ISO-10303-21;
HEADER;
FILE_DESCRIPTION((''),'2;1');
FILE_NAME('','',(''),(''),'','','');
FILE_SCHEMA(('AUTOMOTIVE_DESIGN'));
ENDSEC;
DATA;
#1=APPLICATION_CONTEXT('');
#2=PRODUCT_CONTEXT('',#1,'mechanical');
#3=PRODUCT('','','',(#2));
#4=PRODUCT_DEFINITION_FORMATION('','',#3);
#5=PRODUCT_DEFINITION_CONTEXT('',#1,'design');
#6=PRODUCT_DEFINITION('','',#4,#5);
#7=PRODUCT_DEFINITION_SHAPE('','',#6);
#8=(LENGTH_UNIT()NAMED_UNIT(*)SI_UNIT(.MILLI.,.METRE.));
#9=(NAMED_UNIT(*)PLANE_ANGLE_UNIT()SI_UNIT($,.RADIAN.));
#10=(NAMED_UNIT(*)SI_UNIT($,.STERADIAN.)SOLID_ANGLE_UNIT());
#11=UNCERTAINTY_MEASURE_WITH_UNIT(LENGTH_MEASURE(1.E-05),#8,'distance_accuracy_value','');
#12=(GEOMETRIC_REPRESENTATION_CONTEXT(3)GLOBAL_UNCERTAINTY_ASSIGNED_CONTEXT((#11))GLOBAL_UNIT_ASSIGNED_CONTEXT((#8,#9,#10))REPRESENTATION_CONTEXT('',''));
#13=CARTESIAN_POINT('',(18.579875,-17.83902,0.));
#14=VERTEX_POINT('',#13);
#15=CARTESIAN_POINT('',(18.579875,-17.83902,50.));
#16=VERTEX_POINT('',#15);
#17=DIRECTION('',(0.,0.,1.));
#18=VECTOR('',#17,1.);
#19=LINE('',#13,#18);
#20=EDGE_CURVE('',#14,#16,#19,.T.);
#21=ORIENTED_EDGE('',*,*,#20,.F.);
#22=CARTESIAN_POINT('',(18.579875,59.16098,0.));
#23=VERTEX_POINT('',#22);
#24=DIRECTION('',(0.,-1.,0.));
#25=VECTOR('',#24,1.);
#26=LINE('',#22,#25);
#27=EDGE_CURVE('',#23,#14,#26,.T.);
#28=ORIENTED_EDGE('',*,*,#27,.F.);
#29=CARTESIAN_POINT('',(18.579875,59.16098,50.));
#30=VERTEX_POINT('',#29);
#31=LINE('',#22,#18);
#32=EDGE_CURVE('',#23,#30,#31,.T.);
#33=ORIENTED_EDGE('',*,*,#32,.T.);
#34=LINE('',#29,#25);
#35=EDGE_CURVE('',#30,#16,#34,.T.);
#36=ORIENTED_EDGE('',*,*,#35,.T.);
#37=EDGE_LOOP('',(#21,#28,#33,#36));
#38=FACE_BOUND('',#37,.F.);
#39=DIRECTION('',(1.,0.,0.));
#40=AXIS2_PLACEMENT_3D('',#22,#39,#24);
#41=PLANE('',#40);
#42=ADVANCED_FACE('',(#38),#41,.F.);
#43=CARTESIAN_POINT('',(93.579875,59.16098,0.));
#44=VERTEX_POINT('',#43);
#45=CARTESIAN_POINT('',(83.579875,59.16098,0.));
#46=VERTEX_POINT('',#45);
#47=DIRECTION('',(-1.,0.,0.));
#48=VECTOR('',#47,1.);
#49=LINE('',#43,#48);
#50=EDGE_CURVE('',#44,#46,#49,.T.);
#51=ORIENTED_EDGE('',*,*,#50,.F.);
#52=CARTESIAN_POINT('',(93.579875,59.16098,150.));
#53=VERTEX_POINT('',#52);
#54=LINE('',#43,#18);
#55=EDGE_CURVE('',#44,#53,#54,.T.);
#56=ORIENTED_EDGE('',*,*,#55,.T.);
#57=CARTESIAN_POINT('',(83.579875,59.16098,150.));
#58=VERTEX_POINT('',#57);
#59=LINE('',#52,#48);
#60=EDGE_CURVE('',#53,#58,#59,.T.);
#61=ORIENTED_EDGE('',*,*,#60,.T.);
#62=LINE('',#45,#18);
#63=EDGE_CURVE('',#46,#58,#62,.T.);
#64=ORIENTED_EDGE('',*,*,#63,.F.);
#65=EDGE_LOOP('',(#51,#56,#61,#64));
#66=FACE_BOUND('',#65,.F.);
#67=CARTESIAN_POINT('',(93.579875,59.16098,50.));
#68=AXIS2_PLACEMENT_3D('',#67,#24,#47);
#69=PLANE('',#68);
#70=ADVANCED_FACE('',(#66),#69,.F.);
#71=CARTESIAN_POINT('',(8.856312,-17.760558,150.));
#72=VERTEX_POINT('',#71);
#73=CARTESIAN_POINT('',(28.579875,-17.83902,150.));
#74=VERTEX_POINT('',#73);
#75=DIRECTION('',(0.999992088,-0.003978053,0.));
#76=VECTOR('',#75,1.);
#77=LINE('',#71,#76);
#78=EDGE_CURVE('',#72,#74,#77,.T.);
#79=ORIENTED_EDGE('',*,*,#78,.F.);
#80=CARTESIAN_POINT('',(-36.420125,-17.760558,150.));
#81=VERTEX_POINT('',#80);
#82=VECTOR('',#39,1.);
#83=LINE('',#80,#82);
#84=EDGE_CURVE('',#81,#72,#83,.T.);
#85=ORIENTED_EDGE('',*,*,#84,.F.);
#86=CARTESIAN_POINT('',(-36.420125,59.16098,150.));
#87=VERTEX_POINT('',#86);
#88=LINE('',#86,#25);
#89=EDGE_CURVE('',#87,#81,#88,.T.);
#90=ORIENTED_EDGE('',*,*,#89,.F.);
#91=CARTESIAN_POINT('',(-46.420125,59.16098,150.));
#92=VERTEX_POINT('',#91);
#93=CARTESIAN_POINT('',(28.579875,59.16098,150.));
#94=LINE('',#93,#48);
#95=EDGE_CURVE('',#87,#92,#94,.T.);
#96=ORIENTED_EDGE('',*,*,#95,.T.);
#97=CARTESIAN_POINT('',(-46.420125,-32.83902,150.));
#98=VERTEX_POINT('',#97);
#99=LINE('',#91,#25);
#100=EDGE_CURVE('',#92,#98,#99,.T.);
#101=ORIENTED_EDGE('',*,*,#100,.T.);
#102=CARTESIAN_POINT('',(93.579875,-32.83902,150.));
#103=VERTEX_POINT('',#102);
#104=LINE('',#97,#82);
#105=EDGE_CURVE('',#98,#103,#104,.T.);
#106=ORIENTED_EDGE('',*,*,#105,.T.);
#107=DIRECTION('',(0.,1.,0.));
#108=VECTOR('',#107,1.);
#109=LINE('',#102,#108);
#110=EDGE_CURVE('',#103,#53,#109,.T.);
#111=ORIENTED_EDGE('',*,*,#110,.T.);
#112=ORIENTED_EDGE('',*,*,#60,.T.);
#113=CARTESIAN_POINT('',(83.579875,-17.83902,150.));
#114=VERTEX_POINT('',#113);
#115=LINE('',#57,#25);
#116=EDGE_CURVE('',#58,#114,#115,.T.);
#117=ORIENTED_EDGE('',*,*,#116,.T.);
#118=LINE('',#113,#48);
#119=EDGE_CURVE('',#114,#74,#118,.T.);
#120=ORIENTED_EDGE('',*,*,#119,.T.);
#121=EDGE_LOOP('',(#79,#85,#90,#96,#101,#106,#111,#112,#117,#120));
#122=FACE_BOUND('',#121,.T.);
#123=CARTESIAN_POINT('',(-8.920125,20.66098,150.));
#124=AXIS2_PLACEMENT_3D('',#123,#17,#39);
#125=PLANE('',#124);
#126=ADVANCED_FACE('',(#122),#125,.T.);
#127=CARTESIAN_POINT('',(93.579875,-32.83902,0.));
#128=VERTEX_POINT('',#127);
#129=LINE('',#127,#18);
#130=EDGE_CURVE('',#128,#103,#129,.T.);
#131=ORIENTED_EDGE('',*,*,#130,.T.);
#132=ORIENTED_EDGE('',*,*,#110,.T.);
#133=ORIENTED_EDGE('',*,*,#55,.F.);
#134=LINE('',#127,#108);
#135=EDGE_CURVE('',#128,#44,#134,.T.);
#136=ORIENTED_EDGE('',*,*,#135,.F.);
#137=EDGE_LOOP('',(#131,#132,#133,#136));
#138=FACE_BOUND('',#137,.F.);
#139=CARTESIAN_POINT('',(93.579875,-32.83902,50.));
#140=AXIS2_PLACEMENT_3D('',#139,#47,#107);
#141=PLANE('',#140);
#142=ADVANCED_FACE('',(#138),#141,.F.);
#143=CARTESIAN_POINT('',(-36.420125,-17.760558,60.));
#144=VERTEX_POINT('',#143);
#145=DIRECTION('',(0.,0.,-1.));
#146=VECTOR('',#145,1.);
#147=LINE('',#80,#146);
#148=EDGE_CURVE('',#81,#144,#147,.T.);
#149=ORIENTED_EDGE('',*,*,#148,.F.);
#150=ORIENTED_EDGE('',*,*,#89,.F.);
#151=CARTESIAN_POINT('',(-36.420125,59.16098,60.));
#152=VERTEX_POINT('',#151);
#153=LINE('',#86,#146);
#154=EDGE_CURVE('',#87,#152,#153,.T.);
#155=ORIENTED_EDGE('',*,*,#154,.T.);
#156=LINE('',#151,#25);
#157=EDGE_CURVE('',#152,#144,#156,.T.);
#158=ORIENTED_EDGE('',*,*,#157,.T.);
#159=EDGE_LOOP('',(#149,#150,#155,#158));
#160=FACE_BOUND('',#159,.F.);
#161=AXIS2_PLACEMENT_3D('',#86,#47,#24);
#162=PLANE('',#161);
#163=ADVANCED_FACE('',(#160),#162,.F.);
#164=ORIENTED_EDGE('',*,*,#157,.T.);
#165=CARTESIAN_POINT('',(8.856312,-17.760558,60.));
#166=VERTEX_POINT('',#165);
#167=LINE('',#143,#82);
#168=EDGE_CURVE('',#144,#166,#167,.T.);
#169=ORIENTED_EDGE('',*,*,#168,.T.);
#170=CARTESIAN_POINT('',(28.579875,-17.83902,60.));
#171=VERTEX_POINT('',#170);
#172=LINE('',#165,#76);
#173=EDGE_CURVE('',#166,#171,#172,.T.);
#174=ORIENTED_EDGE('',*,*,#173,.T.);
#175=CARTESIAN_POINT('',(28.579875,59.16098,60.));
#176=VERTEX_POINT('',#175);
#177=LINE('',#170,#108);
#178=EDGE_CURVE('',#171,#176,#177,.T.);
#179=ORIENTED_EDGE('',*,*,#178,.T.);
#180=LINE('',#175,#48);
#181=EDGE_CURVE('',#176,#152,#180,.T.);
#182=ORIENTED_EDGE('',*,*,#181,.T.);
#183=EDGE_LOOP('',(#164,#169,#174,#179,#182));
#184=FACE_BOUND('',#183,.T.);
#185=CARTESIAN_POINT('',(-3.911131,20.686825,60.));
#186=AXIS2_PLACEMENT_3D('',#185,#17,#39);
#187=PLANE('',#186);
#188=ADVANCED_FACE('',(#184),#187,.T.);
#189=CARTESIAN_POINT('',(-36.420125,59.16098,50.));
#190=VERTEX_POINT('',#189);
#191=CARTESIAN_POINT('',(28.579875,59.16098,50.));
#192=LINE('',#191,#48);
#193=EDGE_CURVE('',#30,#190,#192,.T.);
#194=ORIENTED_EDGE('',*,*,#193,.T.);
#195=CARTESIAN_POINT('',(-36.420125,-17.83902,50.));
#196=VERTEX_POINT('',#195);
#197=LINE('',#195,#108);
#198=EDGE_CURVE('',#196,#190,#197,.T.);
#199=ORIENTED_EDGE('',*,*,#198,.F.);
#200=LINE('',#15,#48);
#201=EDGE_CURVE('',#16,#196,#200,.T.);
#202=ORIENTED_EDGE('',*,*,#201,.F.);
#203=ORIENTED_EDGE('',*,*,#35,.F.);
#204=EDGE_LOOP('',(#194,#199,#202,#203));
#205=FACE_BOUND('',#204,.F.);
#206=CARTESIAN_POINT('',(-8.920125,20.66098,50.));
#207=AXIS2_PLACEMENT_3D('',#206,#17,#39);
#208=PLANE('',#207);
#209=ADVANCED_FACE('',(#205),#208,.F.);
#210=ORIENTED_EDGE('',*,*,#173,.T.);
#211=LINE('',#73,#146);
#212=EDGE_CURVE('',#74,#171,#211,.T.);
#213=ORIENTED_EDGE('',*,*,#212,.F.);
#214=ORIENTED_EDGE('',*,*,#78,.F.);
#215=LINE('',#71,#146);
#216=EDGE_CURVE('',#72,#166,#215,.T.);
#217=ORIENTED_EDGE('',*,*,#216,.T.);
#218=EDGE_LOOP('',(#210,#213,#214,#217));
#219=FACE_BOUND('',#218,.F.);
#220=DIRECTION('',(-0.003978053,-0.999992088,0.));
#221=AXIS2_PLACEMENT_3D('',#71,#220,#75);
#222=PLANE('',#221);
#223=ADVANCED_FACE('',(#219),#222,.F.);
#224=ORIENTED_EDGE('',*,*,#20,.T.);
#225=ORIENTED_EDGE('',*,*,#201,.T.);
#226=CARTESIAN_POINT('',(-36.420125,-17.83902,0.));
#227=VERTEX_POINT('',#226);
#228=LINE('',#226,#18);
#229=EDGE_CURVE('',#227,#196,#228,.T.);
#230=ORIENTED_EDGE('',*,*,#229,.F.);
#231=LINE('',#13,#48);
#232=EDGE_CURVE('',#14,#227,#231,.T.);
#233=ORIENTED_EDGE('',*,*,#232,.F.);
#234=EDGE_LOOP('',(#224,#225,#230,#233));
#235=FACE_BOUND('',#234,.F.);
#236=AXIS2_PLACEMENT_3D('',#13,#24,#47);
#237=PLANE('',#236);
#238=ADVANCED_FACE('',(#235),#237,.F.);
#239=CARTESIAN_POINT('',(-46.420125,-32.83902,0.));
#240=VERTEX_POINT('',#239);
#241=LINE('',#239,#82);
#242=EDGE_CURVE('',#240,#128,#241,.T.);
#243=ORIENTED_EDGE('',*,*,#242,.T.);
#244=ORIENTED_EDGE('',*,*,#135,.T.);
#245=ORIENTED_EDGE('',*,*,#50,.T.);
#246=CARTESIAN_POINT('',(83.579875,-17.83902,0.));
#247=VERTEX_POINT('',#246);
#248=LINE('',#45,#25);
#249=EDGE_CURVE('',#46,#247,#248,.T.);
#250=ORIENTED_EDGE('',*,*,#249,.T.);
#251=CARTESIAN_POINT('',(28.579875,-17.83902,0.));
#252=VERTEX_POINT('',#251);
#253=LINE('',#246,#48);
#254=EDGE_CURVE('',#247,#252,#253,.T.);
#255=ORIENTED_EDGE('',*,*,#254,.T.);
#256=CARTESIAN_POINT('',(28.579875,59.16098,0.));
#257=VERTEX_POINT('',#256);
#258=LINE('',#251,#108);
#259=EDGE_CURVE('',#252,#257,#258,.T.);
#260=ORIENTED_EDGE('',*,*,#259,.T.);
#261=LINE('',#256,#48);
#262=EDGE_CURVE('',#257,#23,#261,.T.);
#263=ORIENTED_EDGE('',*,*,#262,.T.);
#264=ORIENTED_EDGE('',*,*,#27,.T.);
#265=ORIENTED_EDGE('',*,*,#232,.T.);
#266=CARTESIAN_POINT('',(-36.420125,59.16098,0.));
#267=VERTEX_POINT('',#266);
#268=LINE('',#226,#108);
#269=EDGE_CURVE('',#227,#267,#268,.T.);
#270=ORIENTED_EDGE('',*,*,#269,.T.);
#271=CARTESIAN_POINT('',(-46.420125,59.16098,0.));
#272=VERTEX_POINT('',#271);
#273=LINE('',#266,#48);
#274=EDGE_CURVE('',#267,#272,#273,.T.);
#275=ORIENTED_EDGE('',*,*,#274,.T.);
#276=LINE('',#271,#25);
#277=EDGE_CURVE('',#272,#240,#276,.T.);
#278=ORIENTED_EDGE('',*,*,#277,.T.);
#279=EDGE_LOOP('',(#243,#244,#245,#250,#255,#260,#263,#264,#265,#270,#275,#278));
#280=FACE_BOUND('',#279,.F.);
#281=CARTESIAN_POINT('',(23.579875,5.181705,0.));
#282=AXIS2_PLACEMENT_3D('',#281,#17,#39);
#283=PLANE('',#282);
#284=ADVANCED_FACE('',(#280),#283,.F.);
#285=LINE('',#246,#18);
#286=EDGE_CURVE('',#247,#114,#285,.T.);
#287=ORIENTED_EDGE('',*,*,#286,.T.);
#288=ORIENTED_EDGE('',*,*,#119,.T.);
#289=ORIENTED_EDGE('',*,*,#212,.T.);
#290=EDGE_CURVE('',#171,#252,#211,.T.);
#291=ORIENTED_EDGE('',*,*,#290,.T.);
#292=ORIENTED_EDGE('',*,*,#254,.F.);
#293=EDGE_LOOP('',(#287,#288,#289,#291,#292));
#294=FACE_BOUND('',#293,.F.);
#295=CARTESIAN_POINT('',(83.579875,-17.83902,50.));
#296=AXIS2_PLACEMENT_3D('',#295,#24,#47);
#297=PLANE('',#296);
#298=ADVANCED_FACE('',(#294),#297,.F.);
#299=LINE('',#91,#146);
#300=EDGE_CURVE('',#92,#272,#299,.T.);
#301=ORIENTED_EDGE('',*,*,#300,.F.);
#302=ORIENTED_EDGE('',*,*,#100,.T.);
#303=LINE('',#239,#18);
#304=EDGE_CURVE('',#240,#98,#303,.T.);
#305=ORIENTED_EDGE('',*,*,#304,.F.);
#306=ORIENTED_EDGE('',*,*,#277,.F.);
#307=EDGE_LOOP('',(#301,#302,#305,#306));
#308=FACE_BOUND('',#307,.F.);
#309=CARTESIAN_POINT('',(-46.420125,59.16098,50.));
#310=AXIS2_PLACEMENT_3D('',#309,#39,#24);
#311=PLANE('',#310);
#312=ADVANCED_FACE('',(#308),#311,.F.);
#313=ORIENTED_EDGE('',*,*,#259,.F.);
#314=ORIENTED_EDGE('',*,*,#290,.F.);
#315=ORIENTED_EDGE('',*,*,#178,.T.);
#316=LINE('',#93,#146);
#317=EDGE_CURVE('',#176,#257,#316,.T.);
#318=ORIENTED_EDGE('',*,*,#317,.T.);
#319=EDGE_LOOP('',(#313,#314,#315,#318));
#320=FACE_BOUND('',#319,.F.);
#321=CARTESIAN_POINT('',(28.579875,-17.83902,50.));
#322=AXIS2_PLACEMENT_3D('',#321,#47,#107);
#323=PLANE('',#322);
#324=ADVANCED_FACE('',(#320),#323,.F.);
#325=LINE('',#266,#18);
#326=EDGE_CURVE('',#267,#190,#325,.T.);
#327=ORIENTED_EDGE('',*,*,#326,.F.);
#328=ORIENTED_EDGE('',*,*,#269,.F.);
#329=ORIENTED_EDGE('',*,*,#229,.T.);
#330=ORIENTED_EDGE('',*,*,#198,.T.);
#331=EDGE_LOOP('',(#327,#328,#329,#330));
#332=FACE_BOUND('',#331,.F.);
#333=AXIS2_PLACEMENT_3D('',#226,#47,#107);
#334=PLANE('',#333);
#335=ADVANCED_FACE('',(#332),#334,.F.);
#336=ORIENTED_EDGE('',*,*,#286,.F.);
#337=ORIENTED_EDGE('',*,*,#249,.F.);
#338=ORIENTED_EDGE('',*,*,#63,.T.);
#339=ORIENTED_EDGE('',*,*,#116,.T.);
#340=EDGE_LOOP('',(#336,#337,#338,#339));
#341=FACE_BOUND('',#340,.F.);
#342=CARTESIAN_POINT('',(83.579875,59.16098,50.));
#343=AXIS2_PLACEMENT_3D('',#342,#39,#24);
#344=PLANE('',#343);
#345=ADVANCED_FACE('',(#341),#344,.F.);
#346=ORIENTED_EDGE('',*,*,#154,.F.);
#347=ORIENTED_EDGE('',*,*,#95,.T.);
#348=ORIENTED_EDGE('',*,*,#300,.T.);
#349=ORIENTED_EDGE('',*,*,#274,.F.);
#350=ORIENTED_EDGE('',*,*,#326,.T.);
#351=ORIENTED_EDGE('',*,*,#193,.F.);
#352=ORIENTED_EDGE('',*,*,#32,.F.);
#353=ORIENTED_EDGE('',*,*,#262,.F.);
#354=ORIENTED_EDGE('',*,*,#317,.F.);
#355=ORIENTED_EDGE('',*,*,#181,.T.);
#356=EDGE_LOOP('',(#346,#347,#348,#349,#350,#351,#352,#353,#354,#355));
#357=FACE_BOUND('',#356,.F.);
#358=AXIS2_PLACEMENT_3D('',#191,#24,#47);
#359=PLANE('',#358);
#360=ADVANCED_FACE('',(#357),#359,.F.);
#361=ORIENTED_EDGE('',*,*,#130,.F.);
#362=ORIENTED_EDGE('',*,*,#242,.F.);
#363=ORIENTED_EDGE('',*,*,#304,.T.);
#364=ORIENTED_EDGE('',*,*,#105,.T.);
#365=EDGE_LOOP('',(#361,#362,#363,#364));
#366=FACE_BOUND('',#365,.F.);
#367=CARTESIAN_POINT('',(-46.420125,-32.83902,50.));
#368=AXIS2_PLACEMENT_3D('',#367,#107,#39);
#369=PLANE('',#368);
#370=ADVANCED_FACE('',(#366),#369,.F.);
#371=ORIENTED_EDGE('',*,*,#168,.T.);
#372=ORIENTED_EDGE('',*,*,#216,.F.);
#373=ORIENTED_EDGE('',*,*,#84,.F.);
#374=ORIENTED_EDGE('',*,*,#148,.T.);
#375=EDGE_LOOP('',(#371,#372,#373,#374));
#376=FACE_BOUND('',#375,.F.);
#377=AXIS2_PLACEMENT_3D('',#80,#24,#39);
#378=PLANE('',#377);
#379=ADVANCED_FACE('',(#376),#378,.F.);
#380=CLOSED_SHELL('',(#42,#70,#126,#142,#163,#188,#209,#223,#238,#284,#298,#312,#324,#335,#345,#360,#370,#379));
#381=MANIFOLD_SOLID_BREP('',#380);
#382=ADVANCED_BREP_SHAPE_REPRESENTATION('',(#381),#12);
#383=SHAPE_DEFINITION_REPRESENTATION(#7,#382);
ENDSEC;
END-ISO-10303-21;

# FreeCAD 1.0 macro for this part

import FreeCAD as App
import Part
import Sketcher
from FreeCAD import Vector
Q = App.Units.Quantity

doc = App.newDocument("Part")
body = doc.addObject("PartDesign::Body", "Body")

# Sketch on XY plane
sketch1 = body.newObject("Sketcher::SketchObject", "Sketch")
sketch1.AttachmentSupport = (doc.getObject("XY_Plane"), [""])
sketch1.MapMode = "FlatFace"
sketch1.addGeometry([
    Part.LineSegment(Vector(-36, 59, 0), Vector(-46, 59, 0)),  # 0
    Part.LineSegment(Vector(-46, 59, 0), Vector(-46, -33, 0)),  # 1
    Part.LineSegment(Vector(-46, -33, 0), Vector(94, -33, 0)),  # 2
    Part.LineSegment(Vector(94, -33, 0), Vector(94, 59, 0)),  # 3
    Part.LineSegment(Vector(94, 59, 0), Vector(84, 59, 0)),  # 4
    Part.LineSegment(Vector(84, 59, 0), Vector(84, -18, 0)),  # 5
    Part.LineSegment(Vector(84, -18, 0), Vector(29, -18, 0)),  # 6
    Part.LineSegment(Vector(29, -18, 0), Vector(29, 59, 0)),  # 7
    Part.LineSegment(Vector(29, 59, 0), Vector(19, 59, 0)),  # 8
    Part.LineSegment(Vector(19, 59, 0), Vector(19, -18, 0)),  # 9
    Part.LineSegment(Vector(19, -18, 0), Vector(-36, -18, 0)),  # 10
    Part.LineSegment(Vector(-36, -18, 0), Vector(-36, 59, 0)),  # 11
], False)
sketch1.addConstraint([
    Sketcher.Constraint("Coincident", 0, 2, 1, 1),
    Sketcher.Constraint("Coincident", 1, 2, 2, 1),
    Sketcher.Constraint("Coincident", 2, 2, 3, 1),
    Sketcher.Constraint("Coincident", 3, 2, 4, 1),
    Sketcher.Constraint("Coincident", 4, 2, 5, 1),
    Sketcher.Constraint("Coincident", 5, 2, 6, 1),
    Sketcher.Constraint("Coincident", 6, 2, 7, 1),
    Sketcher.Constraint("Coincident", 7, 2, 8, 1),
    Sketcher.Constraint("Coincident", 8, 2, 9, 1),
    Sketcher.Constraint("Coincident", 9, 2, 10, 1),
    Sketcher.Constraint("Coincident", 10, 2, 11, 1),
    Sketcher.Constraint("Coincident", 11, 2, 0, 1),
    Sketcher.Constraint("Horizontal", 0),
    Sketcher.Constraint("Vertical", 1),
    Sketcher.Constraint("Horizontal", 2),
    Sketcher.Constraint("Vertical", 3),
    Sketcher.Constraint("Horizontal", 4),
    Sketcher.Constraint("Vertical", 5),
    Sketcher.Constraint("Horizontal", 6),
    Sketcher.Constraint("Vertical", 7),
    Sketcher.Constraint("Horizontal", 8),
    Sketcher.Constraint("Vertical", 9),
    Sketcher.Constraint("Horizontal", 10),
    Sketcher.Constraint("Vertical", 11),
    Sketcher.Constraint("Horizontal", 0, 2, 3, 2),
    Sketcher.Constraint("Horizontal", 4, 2, 7, 2),
    Sketcher.Constraint("Horizontal", 6, 2, 9, 2),
    Sketcher.Constraint("Equal", 0, 4),
    Sketcher.Constraint("Equal", 4, 8),
    Sketcher.Constraint("Equal", 6, 10),
    Sketcher.Constraint("DistanceX", 0, 2, 0, 1, Q("10 mm")),
    Sketcher.Constraint("DistanceX", 2, 1, 2, 2, Q("140 mm")),
    Sketcher.Constraint("DistanceY", 1, 2, 1, 1, Q("92 mm")),
    Sketcher.Constraint("DistanceY", 5, 2, 5, 1, Q("77 mm")),
    Sketcher.Constraint("DistanceY", -1, 1, 0, 2, Q("59.16098 mm")),
    Sketcher.Constraint("DistanceX", 0, 2, -1, 1, Q("46.420125 mm")),
])
pad1 = body.newObject("PartDesign::Pad", "Pad")
pad1.Profile = sketch1
pad1.Length = 50

# Sketch on XY plane
sketch2 = body.newObject("Sketcher::SketchObject", "Sketch001")
sketch2.AttachmentSupport = (doc.getObject("XY_Plane"), [""])
sketch2.MapMode = "FlatFace"
sketch2.AttachmentOffset = App.Placement(Vector(0, 0, 50), App.Rotation())
sketch2.addGeometry([
    Part.LineSegment(Vector(-46, 59, 0), Vector(-46, -33, 0)),  # 0
    Part.LineSegment(Vector(-46, -33, 0), Vector(94, -33, 0)),  # 1
    Part.LineSegment(Vector(94, -33, 0), Vector(94, 59, 0)),  # 2
    Part.LineSegment(Vector(94, 59, 0), Vector(84, 59, 0)),  # 3
    Part.LineSegment(Vector(84, 59, 0), Vector(84, -18, 0)),  # 4
    Part.LineSegment(Vector(84, -18, 0), Vector(29, -18, 0)),  # 5
    Part.LineSegment(Vector(29, -18, 0), Vector(29, 59, 0)),  # 6
    Part.LineSegment(Vector(29, 59, 0), Vector(-46, 59, 0)),  # 7
], False)
sketch2.addConstraint([
    Sketcher.Constraint("Coincident", 0, 2, 1, 1),
    Sketcher.Constraint("Coincident", 1, 2, 2, 1),
    Sketcher.Constraint("Coincident", 2, 2, 3, 1),
    Sketcher.Constraint("Coincident", 3, 2, 4, 1),
    Sketcher.Constraint("Coincident", 4, 2, 5, 1),
    Sketcher.Constraint("Coincident", 5, 2, 6, 1),
    Sketcher.Constraint("Coincident", 6, 2, 7, 1),
    Sketcher.Constraint("Coincident", 7, 2, 0, 1),
    Sketcher.Constraint("Vertical", 0),
    Sketcher.Constraint("Horizontal", 1),
    Sketcher.Constraint("Vertical", 2),
    Sketcher.Constraint("Horizontal", 3),
    Sketcher.Constraint("Vertical", 4),
    Sketcher.Constraint("Horizontal", 5),
    Sketcher.Constraint("Vertical", 6),
    Sketcher.Constraint("Horizontal", 7),
    Sketcher.Constraint("Horizontal", 3, 2, 6, 2),
    Sketcher.Constraint("DistanceX", 1, 1, 1, 2, Q("140 mm")),
    Sketcher.Constraint("DistanceX", 3, 2, 3, 1, Q("10 mm")),
    Sketcher.Constraint("DistanceX", 5, 2, 5, 1, Q("55 mm")),
    Sketcher.Constraint("DistanceY", 0, 2, 0, 1, Q("92 mm")),
    Sketcher.Constraint("DistanceY", 4, 2, 4, 1, Q("77 mm")),
    Sketcher.Constraint("DistanceY", 0, 2, -1, 1, Q("32.83902 mm")),
    Sketcher.Constraint("DistanceX", 0, 2, -1, 1, Q("46.420125 mm")),
])
pad2 = body.newObject("PartDesign::Pad", "Pad001")
pad2.Profile = sketch2
pad2.Length = 100

# Sketch on XY plane
sketch3 = body.newObject("Sketcher::SketchObject", "Sketch002")
sketch3.AttachmentSupport = (doc.getObject("XY_Plane"), [""])
sketch3.MapMode = "FlatFace"
sketch3.AttachmentOffset = App.Placement(Vector(0, 0, 150), App.Rotation())
sketch3.addGeometry([
    Part.LineSegment(Vector(29, 59, 0), Vector(-36, 59, 0)),  # 0
    Part.LineSegment(Vector(-36, 59, 0), Vector(-36, -18, 0)),  # 1
    Part.LineSegment(Vector(-36, -18, 0), Vector(9, -18, 0)),  # 2
    Part.LineSegment(Vector(9, -18, 0), Vector(29, -18, 0)),  # 3
    Part.LineSegment(Vector(29, -18, 0), Vector(29, 59, 0)),  # 4
], False)
sketch3.addConstraint([
    Sketcher.Constraint("Coincident", 0, 2, 1, 1),
    Sketcher.Constraint("Coincident", 1, 2, 2, 1),
    Sketcher.Constraint("Coincident", 2, 2, 3, 1),
    Sketcher.Constraint("Coincident", 3, 2, 4, 1),
    Sketcher.Constraint("Coincident", 4, 2, 0, 1),
    Sketcher.Constraint("Horizontal", 0),
    Sketcher.Constraint("Vertical", 1),
    Sketcher.Constraint("Horizontal", 2),
    Sketcher.Constraint("Vertical", 4),
    Sketcher.Constraint("DistanceX", 0, 2, 0, 1, Q("65 mm")),
    Sketcher.Constraint("DistanceY", 4, 1, 4, 2, Q("77 mm")),
    Sketcher.Constraint("DistanceY", 1, 2, 1, 1, Q("76.921538 mm")),
    Sketcher.Constraint("Distance", 3, Q("19.723719 mm")),
    Sketcher.Constraint("DistanceY", -1, 1, 0, 2, Q("59.16098 mm")),
    Sketcher.Constraint("DistanceX", 0, 2, -1, 1, Q("36.420125 mm")),
])
pocket1 = body.newObject("PartDesign::Pocket", "Pocket")
pocket1.Profile = sketch3
pocket1.Length = 90

doc.recompute()
